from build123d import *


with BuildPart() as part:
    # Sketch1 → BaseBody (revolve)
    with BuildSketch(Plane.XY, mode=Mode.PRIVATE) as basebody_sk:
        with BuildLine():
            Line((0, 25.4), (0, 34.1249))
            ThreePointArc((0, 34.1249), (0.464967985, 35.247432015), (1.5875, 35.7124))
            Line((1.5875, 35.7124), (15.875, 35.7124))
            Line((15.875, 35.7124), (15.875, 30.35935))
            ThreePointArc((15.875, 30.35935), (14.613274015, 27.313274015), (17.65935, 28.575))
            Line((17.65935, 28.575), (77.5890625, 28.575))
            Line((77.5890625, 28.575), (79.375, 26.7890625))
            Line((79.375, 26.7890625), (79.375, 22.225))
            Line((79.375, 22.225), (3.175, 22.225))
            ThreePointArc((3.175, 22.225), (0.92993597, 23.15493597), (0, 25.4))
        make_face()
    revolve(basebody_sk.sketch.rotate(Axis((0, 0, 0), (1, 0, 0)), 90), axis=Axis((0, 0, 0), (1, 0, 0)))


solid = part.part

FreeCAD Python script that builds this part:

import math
import FreeCAD as App
import Part
import Sketcher
from FreeCAD import Vector
Q = App.Units.Quantity

doc = App.newDocument("Part")
body = doc.addObject("PartDesign::Body", "Body")

sketch1 = body.newObject("Sketcher::SketchObject", "Sketch")
sketch1.AttachmentSupport = (doc.getObject("XY_Plane"), [""])
sketch1.MapMode = "FlatFace"
sketch1.addGeometry(Part.LineSegment(Vector(0, 34.1, 0), Vector(0, 25.4, 0)), False)
sketch1.addGeometry(Part.ArcOfCircle(Part.Circle(Vector(3.2, 25.4, 0), Vector(0, 0, 1), 3.2), math.radians(-180), math.radians(-90)), False)
sketch1.addGeometry(Part.LineSegment(Vector(3.2, 22.2, 0), Vector(79.4, 22.2, 0)), False)
sketch1.addGeometry(Part.LineSegment(Vector(79.4, 22.2, 0), Vector(79.4, 26.8, 0)), False)
sketch1.addGeometry(Part.LineSegment(Vector(79.4, 26.8, 0), Vector(77.6, 28.6, 0)), False)
sketch1.addGeometry(Part.LineSegment(Vector(77.6, 28.6, 0), Vector(17.7, 28.6, 0)), False)
sketch1.addGeometry(Part.ArcOfCircle(Part.Circle(Vector(15.9, 28.6, 0), Vector(0, 0, 1), 1.8), math.radians(90), math.radians(360)), False)
sketch1.addGeometry(Part.LineSegment(Vector(15.9, 30.4, 0), Vector(15.9, 35.7, 0)), False)
sketch1.addGeometry(Part.LineSegment(Vector(15.9, 35.7, 0), Vector(1.6, 35.7, 0)), False)
sketch1.addGeometry(Part.ArcOfCircle(Part.Circle(Vector(1.6, 34.1, 0), Vector(0, 0, 1), 1.6), math.radians(90), math.radians(180)), False)
sketch1.addConstraint(Sketcher.Constraint("Tangent", 0, 2, 1, 1))
sketch1.addConstraint(Sketcher.Constraint("Tangent", 1, 2, 2, 1))
sketch1.addConstraint(Sketcher.Constraint("Coincident", 2, 2, 3, 1))
sketch1.addConstraint(Sketcher.Constraint("Coincident", 3, 2, 4, 1))
sketch1.addConstraint(Sketcher.Constraint("Coincident", 4, 2, 5, 1))
sketch1.addConstraint(Sketcher.Constraint("Coincident", 5, 2, 6, 2))
sketch1.addConstraint(Sketcher.Constraint("Coincident", 6, 1, 7, 1))
sketch1.addConstraint(Sketcher.Constraint("Coincident", 7, 2, 8, 1))
sketch1.addConstraint(Sketcher.Constraint("Tangent", 8, 2, 9, 1))
sketch1.addConstraint(Sketcher.Constraint("Tangent", 9, 2, 0, 1))
sketch1.addConstraint(Sketcher.Constraint("Vertical", 0))
sketch1.addConstraint(Sketcher.Constraint("Horizontal", 2))
sketch1.addConstraint(Sketcher.Constraint("Vertical", 3))
sketch1.addConstraint(Sketcher.Constraint("Horizontal", 5))
sketch1.addConstraint(Sketcher.Constraint("Vertical", 7))
sketch1.addConstraint(Sketcher.Constraint("Horizontal", 8))
sketch1.addConstraint(Sketcher.Constraint("PointOnObject", 0, 2, -2))
sketch1.addConstraint(Sketcher.Constraint("Horizontal", 6, 3, 4, 2))
sketch1.addConstraint(Sketcher.Constraint("DistanceX", 2, 1, 2, 2, Q("3 in")))
sketch1.addConstraint(Sketcher.Constraint("DistanceY", -1, 1, 1, 3, Q("1 in")))
sketch1.addConstraint(Sketcher.Constraint("Angle", 4, Q("135 deg")))
sketch1.addConstraint(Sketcher.Constraint("Radius", 1, Q("0.125 in")))
sketch1.addConstraint(Sketcher.Constraint("Radius", 9, Q("0.0625 in")))
sketch1.addConstraint(Sketcher.Constraint("DistanceX", 1, 3, 6, 3, Q("0.5 in")))
sketch1.addConstraint(Sketcher.Constraint("DistanceX", 1, 3, 6, 1, Q("0.5 in")))
sketch1.addConstraint(Sketcher.Constraint("DistanceY", 1, 2, 6, 3, Q("0.25 in")))
sketch1.addConstraint(Sketcher.Constraint("DistanceY", 0, 2, 0, 1, Q("0.3435 in")))
sketch1.addConstraint(Sketcher.Constraint("Radius", 6, Q("1.78435 mm")))
sketch1.addConstraint(Sketcher.Constraint("DistanceX", 5, 2, 5, 1, Q("59.929712 mm")))
revolution = body.newObject("PartDesign::Revolution", "Revolution")
revolution.Profile = sketch1
revolution.ReferenceAxis = (sketch1, ["H_Axis"])
revolution.Angle = 360

doc.recompute()
